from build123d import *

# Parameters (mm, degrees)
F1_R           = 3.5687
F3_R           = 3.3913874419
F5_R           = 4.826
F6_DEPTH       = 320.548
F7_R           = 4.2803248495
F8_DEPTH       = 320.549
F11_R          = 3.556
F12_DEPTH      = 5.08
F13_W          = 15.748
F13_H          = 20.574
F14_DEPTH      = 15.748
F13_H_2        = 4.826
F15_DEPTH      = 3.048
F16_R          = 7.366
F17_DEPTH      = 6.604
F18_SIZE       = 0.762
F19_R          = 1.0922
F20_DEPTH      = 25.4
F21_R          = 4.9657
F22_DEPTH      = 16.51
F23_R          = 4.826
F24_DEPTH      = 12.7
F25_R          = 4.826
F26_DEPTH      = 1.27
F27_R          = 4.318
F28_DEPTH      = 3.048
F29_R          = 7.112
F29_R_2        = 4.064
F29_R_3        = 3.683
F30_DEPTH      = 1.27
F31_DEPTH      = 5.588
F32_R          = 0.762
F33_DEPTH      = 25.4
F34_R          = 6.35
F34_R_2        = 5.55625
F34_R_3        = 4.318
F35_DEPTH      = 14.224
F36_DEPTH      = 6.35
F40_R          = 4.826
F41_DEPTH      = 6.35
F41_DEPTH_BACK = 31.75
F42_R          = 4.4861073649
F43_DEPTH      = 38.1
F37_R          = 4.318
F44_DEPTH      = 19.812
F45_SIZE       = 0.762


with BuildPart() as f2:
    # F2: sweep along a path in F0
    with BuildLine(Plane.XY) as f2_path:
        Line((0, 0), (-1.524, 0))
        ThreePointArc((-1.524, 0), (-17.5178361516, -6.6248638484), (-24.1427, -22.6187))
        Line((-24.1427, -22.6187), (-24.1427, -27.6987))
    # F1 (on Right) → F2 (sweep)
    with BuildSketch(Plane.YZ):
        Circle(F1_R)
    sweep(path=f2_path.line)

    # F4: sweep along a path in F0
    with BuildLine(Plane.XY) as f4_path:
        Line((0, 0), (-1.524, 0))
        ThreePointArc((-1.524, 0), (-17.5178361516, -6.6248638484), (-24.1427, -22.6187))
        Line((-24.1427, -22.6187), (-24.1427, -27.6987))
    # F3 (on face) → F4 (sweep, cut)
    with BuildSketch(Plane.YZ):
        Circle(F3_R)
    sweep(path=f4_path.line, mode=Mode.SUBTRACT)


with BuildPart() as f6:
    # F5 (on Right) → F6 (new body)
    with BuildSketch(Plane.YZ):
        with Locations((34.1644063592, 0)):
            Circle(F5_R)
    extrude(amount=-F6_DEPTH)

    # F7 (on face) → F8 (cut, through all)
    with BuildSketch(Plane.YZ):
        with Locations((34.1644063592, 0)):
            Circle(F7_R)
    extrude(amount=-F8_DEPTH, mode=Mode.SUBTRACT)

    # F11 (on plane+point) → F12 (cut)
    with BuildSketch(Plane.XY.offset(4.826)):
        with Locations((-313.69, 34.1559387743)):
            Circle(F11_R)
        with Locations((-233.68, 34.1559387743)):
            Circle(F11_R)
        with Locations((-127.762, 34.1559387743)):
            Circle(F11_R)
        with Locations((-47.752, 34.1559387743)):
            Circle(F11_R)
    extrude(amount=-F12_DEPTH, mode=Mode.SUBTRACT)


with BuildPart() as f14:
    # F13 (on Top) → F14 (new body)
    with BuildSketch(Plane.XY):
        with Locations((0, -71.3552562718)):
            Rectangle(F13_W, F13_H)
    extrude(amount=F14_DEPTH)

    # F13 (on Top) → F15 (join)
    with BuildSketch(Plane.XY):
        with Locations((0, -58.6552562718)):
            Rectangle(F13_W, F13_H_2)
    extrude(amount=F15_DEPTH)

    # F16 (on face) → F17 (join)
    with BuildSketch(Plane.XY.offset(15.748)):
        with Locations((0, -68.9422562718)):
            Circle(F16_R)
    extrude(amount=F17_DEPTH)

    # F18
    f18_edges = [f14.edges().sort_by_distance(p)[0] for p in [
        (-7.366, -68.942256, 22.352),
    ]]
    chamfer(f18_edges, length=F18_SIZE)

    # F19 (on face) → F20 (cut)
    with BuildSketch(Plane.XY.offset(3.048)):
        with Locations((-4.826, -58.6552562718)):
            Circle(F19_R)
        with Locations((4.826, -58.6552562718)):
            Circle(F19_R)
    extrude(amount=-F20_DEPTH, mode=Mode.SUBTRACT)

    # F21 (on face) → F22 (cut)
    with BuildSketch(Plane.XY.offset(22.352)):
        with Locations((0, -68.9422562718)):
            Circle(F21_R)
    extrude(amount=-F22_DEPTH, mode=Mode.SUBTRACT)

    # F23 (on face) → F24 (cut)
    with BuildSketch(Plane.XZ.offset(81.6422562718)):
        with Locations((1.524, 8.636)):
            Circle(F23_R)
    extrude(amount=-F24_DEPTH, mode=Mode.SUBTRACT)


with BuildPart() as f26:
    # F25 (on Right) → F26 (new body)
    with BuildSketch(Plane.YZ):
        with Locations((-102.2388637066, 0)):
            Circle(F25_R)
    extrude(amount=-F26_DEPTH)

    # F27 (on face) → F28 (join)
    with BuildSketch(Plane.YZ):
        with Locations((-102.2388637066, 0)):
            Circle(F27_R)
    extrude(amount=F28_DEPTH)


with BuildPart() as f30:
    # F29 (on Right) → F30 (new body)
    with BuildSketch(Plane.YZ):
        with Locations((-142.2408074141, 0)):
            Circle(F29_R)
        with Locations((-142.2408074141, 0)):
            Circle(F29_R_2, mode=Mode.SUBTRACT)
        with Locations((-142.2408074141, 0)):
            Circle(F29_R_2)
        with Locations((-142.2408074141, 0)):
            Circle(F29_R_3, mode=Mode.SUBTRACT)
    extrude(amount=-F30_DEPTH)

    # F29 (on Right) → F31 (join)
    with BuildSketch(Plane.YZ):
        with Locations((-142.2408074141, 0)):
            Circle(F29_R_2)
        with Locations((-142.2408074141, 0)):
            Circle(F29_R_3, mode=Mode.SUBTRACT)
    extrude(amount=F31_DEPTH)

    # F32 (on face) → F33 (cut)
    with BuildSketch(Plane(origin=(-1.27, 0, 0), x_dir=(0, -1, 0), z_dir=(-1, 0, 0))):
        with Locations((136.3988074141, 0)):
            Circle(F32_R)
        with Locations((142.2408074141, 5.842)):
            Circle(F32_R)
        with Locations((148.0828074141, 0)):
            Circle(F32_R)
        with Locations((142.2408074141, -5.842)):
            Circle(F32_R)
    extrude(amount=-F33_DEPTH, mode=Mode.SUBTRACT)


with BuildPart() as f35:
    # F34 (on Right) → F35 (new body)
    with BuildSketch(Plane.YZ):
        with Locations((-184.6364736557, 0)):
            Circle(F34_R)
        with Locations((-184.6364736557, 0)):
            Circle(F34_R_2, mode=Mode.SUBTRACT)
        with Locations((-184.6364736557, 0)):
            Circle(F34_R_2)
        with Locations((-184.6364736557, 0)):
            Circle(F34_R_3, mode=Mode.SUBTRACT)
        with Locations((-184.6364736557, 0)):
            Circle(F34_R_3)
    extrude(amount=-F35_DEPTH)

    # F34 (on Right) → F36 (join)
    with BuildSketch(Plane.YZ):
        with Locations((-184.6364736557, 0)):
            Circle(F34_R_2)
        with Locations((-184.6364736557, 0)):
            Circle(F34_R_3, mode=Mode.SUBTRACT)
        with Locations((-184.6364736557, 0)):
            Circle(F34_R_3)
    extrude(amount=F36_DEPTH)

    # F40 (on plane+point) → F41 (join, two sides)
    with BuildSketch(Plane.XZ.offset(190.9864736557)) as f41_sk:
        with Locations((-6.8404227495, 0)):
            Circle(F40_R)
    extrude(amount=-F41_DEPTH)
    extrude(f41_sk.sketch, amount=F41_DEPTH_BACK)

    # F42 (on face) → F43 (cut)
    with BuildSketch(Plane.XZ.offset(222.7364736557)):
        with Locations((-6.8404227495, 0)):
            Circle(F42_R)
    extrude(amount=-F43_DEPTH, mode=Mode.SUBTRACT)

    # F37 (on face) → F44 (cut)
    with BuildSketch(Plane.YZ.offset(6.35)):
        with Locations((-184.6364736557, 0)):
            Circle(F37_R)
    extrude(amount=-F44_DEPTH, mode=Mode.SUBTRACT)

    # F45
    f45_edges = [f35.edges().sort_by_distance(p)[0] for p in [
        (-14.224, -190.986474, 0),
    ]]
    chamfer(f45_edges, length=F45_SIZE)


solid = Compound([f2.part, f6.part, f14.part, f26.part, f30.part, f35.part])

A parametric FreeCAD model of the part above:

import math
import FreeCAD as App
import Part
import Sketcher
Q = App.Units.Quantity


def edges_at(feature, points):
    """Names of the edges that pass closest to the given points."""
    edges = feature.Shape.Edges
    near = lambda p: min(range(len(edges)), key=lambda i: edges[i].distToShape(Part.Vertex(*p))[0])
    return sorted({f"Edge{near(p) + 1}" for p in points})

doc = App.newDocument("Part")
body = doc.addObject("PartDesign::Body", "Body")

sketch1 = body.newObject("Sketcher::SketchObject", "Sketch")
sketch1.AttachmentSupport = (doc.getObject("YZ_Plane"), [""])
sketch1.MapMode = "FlatFace"
sketch1.addGeometry(Part.Circle(App.Vector(0, 0, 0), App.Vector(0, 0, 1), 3.5687), False)
sketch1.addConstraint(Sketcher.Constraint("Coincident", 0, 3, -1, 1))
sketch1.addConstraint(Sketcher.Constraint("Diameter", 0, Q("0.281 in")))

sketch2 = body.newObject("Sketcher::SketchObject", "Sketch001")
sketch2.AttachmentSupport = (doc.getObject("XY_Plane"), [""])
sketch2.MapMode = "FlatFace"
sketch2.addGeometry(Part.LineSegment(App.Vector(0, 0, 0), App.Vector(-1.524, 0, 0)), False)
sketch2.addGeometry(Part.ArcOfCircle(Part.Circle(App.Vector(-1.524, -22.6187, 0), App.Vector(0, 0, 1), 22.6187), math.radians(90), math.radians(180)), False)
sketch2.addGeometry(Part.LineSegment(App.Vector(-24.1427, -22.6187, 0), App.Vector(-24.1427, -27.6987, 0)), False)
sketch2.addConstraint(Sketcher.Constraint("Tangent", 0, 2, 1, 1))
sketch2.addConstraint(Sketcher.Constraint("Tangent", 1, 2, 2, 1))
sketch2.addConstraint(Sketcher.Constraint("Horizontal", 0))
sketch2.addConstraint(Sketcher.Constraint("Vertical", 2))
sketch2.addConstraint(Sketcher.Constraint("Coincident", 0, 1, -1, 1))
sketch2.addConstraint(Sketcher.Constraint("DistanceY", 2, 2, 2, 1, Q("0.2 in")))
sketch2.addConstraint(Sketcher.Constraint("DistanceX", 0, 2, 0, 1, Q("0.06 in")))
sketch2.addConstraint(Sketcher.Constraint("Radius", 1, Q("0.8905 in")))
doc.recompute()

additivepipe = body.newObject("PartDesign::AdditivePipe", "AdditivePipe")
additivepipe.Profile = sketch1
additivepipe.Spine = (sketch2, ["Edge1", "Edge2", "Edge3"])

sketch3 = body.newObject("Sketcher::SketchObject", "Sketch002")
sketch3.AttachmentSupport = (doc.getObject("YZ_Plane"), [""])
sketch3.MapMode = "FlatFace"
sketch3.addGeometry(Part.Circle(App.Vector(0, 0, 0), App.Vector(0, 0, 1), 3.391387), False)
sketch3.addConstraint(Sketcher.Constraint("Coincident", 0, 3, -1, 1))
sketch3.addConstraint(Sketcher.Constraint("Diameter", 0, Q("6.782775 mm")))

sketch4 = body.newObject("Sketcher::SketchObject", "Sketch003")
sketch4.AttachmentSupport = (doc.getObject("XY_Plane"), [""])
sketch4.MapMode = "FlatFace"
sketch4.addGeometry(Part.LineSegment(App.Vector(0, 0, 0), App.Vector(-1.524, 0, 0)), False)
sketch4.addGeometry(Part.ArcOfCircle(Part.Circle(App.Vector(-1.524, -22.6187, 0), App.Vector(0, 0, 1), 22.6187), math.radians(90), math.radians(180)), False)
sketch4.addGeometry(Part.LineSegment(App.Vector(-24.1427, -22.6187, 0), App.Vector(-24.1427, -27.6987, 0)), False)
sketch4.addConstraint(Sketcher.Constraint("Tangent", 0, 2, 1, 1))
sketch4.addConstraint(Sketcher.Constraint("Tangent", 1, 2, 2, 1))
sketch4.addConstraint(Sketcher.Constraint("Horizontal", 0))
sketch4.addConstraint(Sketcher.Constraint("Vertical", 2))
sketch4.addConstraint(Sketcher.Constraint("Coincident", 0, 1, -1, 1))
sketch4.addConstraint(Sketcher.Constraint("DistanceY", 2, 2, 2, 1, Q("0.2 in")))
sketch4.addConstraint(Sketcher.Constraint("DistanceX", 0, 2, 0, 1, Q("0.06 in")))
sketch4.addConstraint(Sketcher.Constraint("Radius", 1, Q("0.8905 in")))
doc.recompute()

subtractivepipe = body.newObject("PartDesign::SubtractivePipe", "SubtractivePipe")
subtractivepipe.Profile = sketch3
subtractivepipe.Spine = (sketch4, ["Edge1", "Edge2", "Edge3"])
body2 = doc.addObject("PartDesign::Body", "Body001")

sketch5 = body2.newObject("Sketcher::SketchObject", "Sketch004")
sketch5.AttachmentSupport = (doc.getObject("YZ_Plane001"), [""])
sketch5.MapMode = "FlatFace"
sketch5.addGeometry(Part.Circle(App.Vector(34.164406, 0, 0), App.Vector(0, 0, 1), 4.826), False)
sketch5.addConstraint(Sketcher.Constraint("PointOnObject", 0, 3, -1))
sketch5.addConstraint(Sketcher.Constraint("Diameter", 0, Q("0.38 in")))
sketch5.addConstraint(Sketcher.Constraint("DistanceX", -1, 1, 0, 3, Q("34.164406 mm")))
pad1 = body2.newObject("PartDesign::Pad", "Pad")
pad1.Profile = sketch5
pad1.Length = Q("12.62 in")
pad1.Reversed = True

sketch6 = body2.newObject("Sketcher::SketchObject", "Sketch005")
sketch6.AttachmentSupport = (doc.getObject("YZ_Plane001"), [""])
sketch6.MapMode = "FlatFace"
sketch6.addGeometry(Part.Circle(App.Vector(34.164406, 0, 0), App.Vector(0, 0, 1), 4.280325), False)
sketch6.addConstraint(Sketcher.Constraint("PointOnObject", 0, 3, -1))
sketch6.addConstraint(Sketcher.Constraint("Diameter", 0, Q("8.56065 mm")))
sketch6.addConstraint(Sketcher.Constraint("DistanceX", -1, 1, 0, 3, Q("34.164406 mm")))
pocket1 = body2.newObject("PartDesign::Pocket", "Pocket")
pocket1.Profile = sketch6
pocket1.Type = "ThroughAll"

sketch7 = body2.newObject("Sketcher::SketchObject", "Sketch006")
sketch7.AttachmentSupport = (doc.getObject("XY_Plane001"), [""])
sketch7.MapMode = "FlatFace"
sketch7.AttachmentOffset = App.Placement(App.Vector(0, 0, 0.19 * 25.4), App.Rotation())
sketch7.addGeometry(Part.Circle(App.Vector(-313.69, 34.155939, 0), App.Vector(0, 0, 1), 3.556), False)
sketch7.addGeometry(Part.Circle(App.Vector(-233.68, 34.155939, 0), App.Vector(0, 0, 1), 3.556), False)
sketch7.addGeometry(Part.Circle(App.Vector(-127.762, 34.155939, 0), App.Vector(0, 0, 1), 3.556), False)
sketch7.addGeometry(Part.Circle(App.Vector(-47.752, 34.155939, 0), App.Vector(0, 0, 1), 3.556), False)
sketch7.addConstraint(Sketcher.Constraint("Equal", 0, 1))
sketch7.addConstraint(Sketcher.Constraint("Equal", 1, 2))
sketch7.addConstraint(Sketcher.Constraint("Equal", 2, 3))
sketch7.addConstraint(Sketcher.Constraint("Horizontal", 0, 3, 1, 3))
sketch7.addConstraint(Sketcher.Constraint("Horizontal", 1, 3, 2, 3))
sketch7.addConstraint(Sketcher.Constraint("Horizontal", 2, 3, 3, 3))
sketch7.addConstraint(Sketcher.Constraint("Diameter", 0, Q("0.28 in")))
sketch7.addConstraint(Sketcher.Constraint("DistanceX", 1, 3, -1, 1, Q("9.2 in")))
sketch7.addConstraint(Sketcher.Constraint("DistanceX", 0, 3, -1, 1, Q("12.35 in")))
sketch7.addConstraint(Sketcher.Constraint("DistanceX", 2, 3, -1, 1, Q("5.03 in")))
sketch7.addConstraint(Sketcher.Constraint("DistanceX", 3, 3, -1, 1, Q("1.88 in")))
sketch7.addConstraint(Sketcher.Constraint("DistanceY", -1, 1, 0, 3, Q("34.155939 mm")))
pocket2 = body2.newObject("PartDesign::Pocket", "Pocket001")
pocket2.Profile = sketch7
pocket2.Length = Q("0.2 in")
body3 = doc.addObject("PartDesign::Body", "Body002")

sketch8 = body3.newObject("Sketcher::SketchObject", "Sketch007")
sketch8.AttachmentSupport = (doc.getObject("XY_Plane002"), [""])
sketch8.MapMode = "FlatFace"
sketch8.addGeometry(Part.LineSegment(App.Vector(-7.874, -61.068256, 0), App.Vector(-7.874, -81.642256, 0)), False)
sketch8.addGeometry(Part.LineSegment(App.Vector(-7.874, -81.642256, 0), App.Vector(7.874, -81.642256, 0)), False)
sketch8.addGeometry(Part.LineSegment(App.Vector(7.874, -81.642256, 0), App.Vector(7.874, -61.068256, 0)), False)
sketch8.addGeometry(Part.LineSegment(App.Vector(7.874, -61.068256, 0), App.Vector(-7.874, -61.068256, 0)), False)
sketch8.addConstraint(Sketcher.Constraint("Coincident", 0, 2, 1, 1))
sketch8.addConstraint(Sketcher.Constraint("Coincident", 1, 2, 2, 1))
sketch8.addConstraint(Sketcher.Constraint("Coincident", 2, 2, 3, 1))
sketch8.addConstraint(Sketcher.Constraint("Coincident", 3, 2, 0, 1))
sketch8.addConstraint(Sketcher.Constraint("Vertical", 0))
sketch8.addConstraint(Sketcher.Constraint("Horizontal", 1))
sketch8.addConstraint(Sketcher.Constraint("Vertical", 2))
sketch8.addConstraint(Sketcher.Constraint("Horizontal", 3))
sketch8.addConstraint(Sketcher.Constraint("DistanceX", 1, 1, 1, 2, Q("0.62 in")))
sketch8.addConstraint(Sketcher.Constraint("DistanceY", 0, 2, 0, 1, Q("0.81 in")))
sketch8.addConstraint(Sketcher.Constraint("DistanceX", 0, 2, -1, 1, Q("0.31 in")))
sketch8.addConstraint(Sketcher.Constraint("DistanceY", 0, 2, -1, 1, Q("81.642256 mm")))
pad2 = body3.newObject("PartDesign::Pad", "Pad001")
pad2.Profile = sketch8
pad2.Length = Q("0.62 in")

sketch9 = body3.newObject("Sketcher::SketchObject", "Sketch008")
sketch9.AttachmentSupport = (doc.getObject("XY_Plane002"), [""])
sketch9.MapMode = "FlatFace"
sketch9.addGeometry(Part.LineSegment(App.Vector(-7.874, -56.242256, 0), App.Vector(-7.874, -61.068256, 0)), False)
sketch9.addGeometry(Part.LineSegment(App.Vector(-7.874, -61.068256, 0), App.Vector(7.874, -61.068256, 0)), False)
sketch9.addGeometry(Part.LineSegment(App.Vector(7.874, -61.068256, 0), App.Vector(7.874, -56.242256, 0)), False)
sketch9.addGeometry(Part.LineSegment(App.Vector(7.874, -56.242256, 0), App.Vector(-7.874, -56.242256, 0)), False)
sketch9.addConstraint(Sketcher.Constraint("Coincident", 0, 2, 1, 1))
sketch9.addConstraint(Sketcher.Constraint("Coincident", 1, 2, 2, 1))
sketch9.addConstraint(Sketcher.Constraint("Coincident", 2, 2, 3, 1))
sketch9.addConstraint(Sketcher.Constraint("Coincident", 3, 2, 0, 1))
sketch9.addConstraint(Sketcher.Constraint("Vertical", 0))
sketch9.addConstraint(Sketcher.Constraint("Horizontal", 1))
sketch9.addConstraint(Sketcher.Constraint("Vertical", 2))
sketch9.addConstraint(Sketcher.Constraint("Horizontal", 3))
sketch9.addConstraint(Sketcher.Constraint("DistanceX", 1, 1, 1, 2, Q("0.62 in")))
sketch9.addConstraint(Sketcher.Constraint("DistanceY", 0, 2, 0, 1, Q("0.19 in")))
sketch9.addConstraint(Sketcher.Constraint("DistanceX", 0, 2, -1, 1, Q("0.31 in")))
sketch9.addConstraint(Sketcher.Constraint("DistanceY", 0, 2, -1, 1, Q("61.068256 mm")))
pad3 = body3.newObject("PartDesign::Pad", "Pad002")
pad3.Profile = sketch9
pad3.Length = Q("0.12 in")

sketch10 = body3.newObject("Sketcher::SketchObject", "Sketch009")
sketch10.AttachmentSupport = (doc.getObject("XY_Plane002"), [""])
sketch10.MapMode = "FlatFace"
sketch10.AttachmentOffset = App.Placement(App.Vector(0, 0, 0.62 * 25.4), App.Rotation())
sketch10.addGeometry(Part.Circle(App.Vector(0, -68.942256, 0), App.Vector(0, 0, 1), 7.366), False)
sketch10.addConstraint(Sketcher.Constraint("PointOnObject", 0, 3, -2))
sketch10.addConstraint(Sketcher.Constraint("Diameter", 0, Q("0.58 in")))
sketch10.addConstraint(Sketcher.Constraint("DistanceY", 0, 3, -1, 1, Q("68.942256 mm")))
pad4 = body3.newObject("PartDesign::Pad", "Pad003")
pad4.Profile = sketch10
pad4.Length = Q("0.26 in")
doc.recompute()

chamfer = body3.newObject("PartDesign::Chamfer", "Chamfer")
chamfer.Base = (pad4, edges_at(pad4, [(-7.366, -68.942, 22.352)]))
chamfer.Size = Q("0.03 in")

sketch11 = body3.newObject("Sketcher::SketchObject", "Sketch010")
sketch11.AttachmentSupport = (doc.getObject("XY_Plane002"), [""])
sketch11.MapMode = "FlatFace"
sketch11.AttachmentOffset = App.Placement(App.Vector(0, 0, 0.12 * 25.4), App.Rotation())
sketch11.addGeometry(Part.Circle(App.Vector(-4.826, -58.655256, 0), App.Vector(0, 0, 1), 1.0922), False)
sketch11.addGeometry(Part.Circle(App.Vector(4.826, -58.655256, 0), App.Vector(0, 0, 1), 1.0922), False)
sketch11.addConstraint(Sketcher.Constraint("Equal", 0, 1))
sketch11.addConstraint(Sketcher.Constraint("Symmetric", 0, 3, 1, 3, -2))
sketch11.addConstraint(Sketcher.Constraint("Diameter", 0, Q("0.086 in")))
sketch11.addConstraint(Sketcher.Constraint("DistanceX", 0, 3, -1, 1, Q("0.19 in")))
sketch11.addConstraint(Sketcher.Constraint("DistanceY", 0, 3, -1, 1, Q("58.655256 mm")))
pocket3 = body3.newObject("PartDesign::Pocket", "Pocket002")
pocket3.Profile = sketch11
pocket3.Length = Q("1 in")

sketch12 = body3.newObject("Sketcher::SketchObject", "Sketch011")
sketch12.AttachmentSupport = (doc.getObject("XY_Plane002"), [""])
sketch12.MapMode = "FlatFace"
sketch12.AttachmentOffset = App.Placement(App.Vector(0, 0, 0.88 * 25.4), App.Rotation())
sketch12.addGeometry(Part.Circle(App.Vector(0, -68.942256, 0), App.Vector(0, 0, 1), 4.9657), False)
sketch12.addConstraint(Sketcher.Constraint("PointOnObject", 0, 3, -2))
sketch12.addConstraint(Sketcher.Constraint("Diameter", 0, Q("0.391 in")))
sketch12.addConstraint(Sketcher.Constraint("DistanceY", 0, 3, -1, 1, Q("68.942256 mm")))
pocket4 = body3.newObject("PartDesign::Pocket", "Pocket003")
pocket4.Profile = sketch12
pocket4.Length = Q("0.65 in")

sketch13 = body3.newObject("Sketcher::SketchObject", "Sketch012")
sketch13.AttachmentSupport = (doc.getObject("XZ_Plane002"), [""])
sketch13.MapMode = "FlatFace"
sketch13.AttachmentOffset = App.Placement(App.Vector(0, 0, 81.642256), App.Rotation())
sketch13.addGeometry(Part.Circle(App.Vector(1.524, 8.636, 0), App.Vector(0, 0, 1), 4.826), False)
sketch13.addConstraint(Sketcher.Constraint("Diameter", 0, Q("0.38 in")))
sketch13.addConstraint(Sketcher.Constraint("DistanceX", -1, 1, 0, 3, Q("0.06 in")))
sketch13.addConstraint(Sketcher.Constraint("DistanceY", -1, 1, 0, 3, Q("0.34 in")))
pocket5 = body3.newObject("PartDesign::Pocket", "Pocket004")
pocket5.Profile = sketch13
pocket5.Length = Q("0.5 in")
body4 = doc.addObject("PartDesign::Body", "Body003")

sketch14 = body4.newObject("Sketcher::SketchObject", "Sketch013")
sketch14.AttachmentSupport = (doc.getObject("YZ_Plane003"), [""])
sketch14.MapMode = "FlatFace"
sketch14.addGeometry(Part.Circle(App.Vector(-102.238864, 0, 0), App.Vector(0, 0, 1), 4.826), False)
sketch14.addConstraint(Sketcher.Constraint("PointOnObject", 0, 3, -1))
sketch14.addConstraint(Sketcher.Constraint("Diameter", 0, Q("0.38 in")))
sketch14.addConstraint(Sketcher.Constraint("DistanceX", 0, 3, -1, 1, Q("102.238864 mm")))
pad5 = body4.newObject("PartDesign::Pad", "Pad004")
pad5.Profile = sketch14
pad5.Length = Q("0.05 in")
pad5.Reversed = True

sketch15 = body4.newObject("Sketcher::SketchObject", "Sketch014")
sketch15.AttachmentSupport = (doc.getObject("YZ_Plane003"), [""])
sketch15.MapMode = "FlatFace"
sketch15.addGeometry(Part.Circle(App.Vector(-102.238864, 0, 0), App.Vector(0, 0, 1), 4.318), False)
sketch15.addConstraint(Sketcher.Constraint("PointOnObject", 0, 3, -1))
sketch15.addConstraint(Sketcher.Constraint("Diameter", 0, Q("0.34 in")))
sketch15.addConstraint(Sketcher.Constraint("DistanceX", 0, 3, -1, 1, Q("102.238864 mm")))
pad6 = body4.newObject("PartDesign::Pad", "Pad005")
pad6.Profile = sketch15
pad6.Length = Q("0.12 in")
body5 = doc.addObject("PartDesign::Body", "Body004")

sketch16 = body5.newObject("Sketcher::SketchObject", "Sketch015")
sketch16.AttachmentSupport = (doc.getObject("YZ_Plane004"), [""])
sketch16.MapMode = "FlatFace"
sketch16.addGeometry(Part.Circle(App.Vector(-142.240807, 0, 0), App.Vector(0, 0, 1), 7.112), False)
sketch16.addGeometry(Part.Circle(App.Vector(-142.240807, 0, 0), App.Vector(0, 0, 1), 3.683), False)
sketch16.addConstraint(Sketcher.Constraint("Coincident", 1, 3, 0, 3))
sketch16.addConstraint(Sketcher.Constraint("PointOnObject", 0, 3, -1))
sketch16.addConstraint(Sketcher.Constraint("Diameter", 0, Q("0.56 in")))
sketch16.addConstraint(Sketcher.Constraint("Diameter", 1, Q("0.29 in")))
sketch16.addConstraint(Sketcher.Constraint("DistanceX", 0, 3, -1, 1, Q("142.240807 mm")))
pad7 = body5.newObject("PartDesign::Pad", "Pad006")
pad7.Profile = sketch16
pad7.Length = Q("0.05 in")
pad7.Reversed = True

sketch17 = body5.newObject("Sketcher::SketchObject", "Sketch016")
sketch17.AttachmentSupport = (doc.getObject("YZ_Plane004"), [""])
sketch17.MapMode = "FlatFace"
sketch17.addGeometry(Part.Circle(App.Vector(-142.240807, 0, 0), App.Vector(0, 0, 1), 4.064), False)
sketch17.addGeometry(Part.Circle(App.Vector(-142.240807, 0, 0), App.Vector(0, 0, 1), 3.683), False)
sketch17.addConstraint(Sketcher.Constraint("Coincident", 1, 3, 0, 3))
sketch17.addConstraint(Sketcher.Constraint("PointOnObject", 0, 3, -1))
sketch17.addConstraint(Sketcher.Constraint("Diameter", 0, Q("0.32 in")))
sketch17.addConstraint(Sketcher.Constraint("Diameter", 1, Q("0.29 in")))
sketch17.addConstraint(Sketcher.Constraint("DistanceX", 0, 3, -1, 1, Q("142.240807 mm")))
pad8 = body5.newObject("PartDesign::Pad", "Pad007")
pad8.Profile = sketch17
pad8.Length = Q("0.22 in")

sketch18 = body5.newObject("Sketcher::SketchObject", "Sketch017")
sketch18.AttachmentSupport = (doc.getObject("YZ_Plane004"), [""])
sketch18.MapMode = "FlatFace"
sketch18.AttachmentOffset = App.Placement(App.Vector(0, 0, -0.05 * 25.4), App.Rotation())
sketch18.addGeometry(Part.Circle(App.Vector(-136.398807, 0, 0), App.Vector(0, 0, 1), 0.762), False)
sketch18.addGeometry(Part.Circle(App.Vector(-142.240807, 5.842, 0), App.Vector(0, 0, 1), 0.762), False)
sketch18.addGeometry(Part.Circle(App.Vector(-148.082807, 0, 0), App.Vector(0, 0, 1), 0.762), False)
sketch18.addGeometry(Part.Circle(App.Vector(-142.240807, -5.842, 0), App.Vector(0, 0, 1), 0.762), False)
sketch18.addConstraint(Sketcher.Constraint("Equal", 0, 1))
sketch18.addConstraint(Sketcher.Constraint("Equal", 1, 2))
sketch18.addConstraint(Sketcher.Constraint("Equal", 2, 3))
sketch18.addConstraint(Sketcher.Constraint("Symmetric", 1, 3, 3, 3, -1))
sketch18.addConstraint(Sketcher.Constraint("PointOnObject", 0, 3, -1))
sketch18.addConstraint(Sketcher.Constraint("PointOnObject", 2, 3, -1))
sketch18.addConstraint(Sketcher.Constraint("Diameter", 0, Q("0.06 in")))
sketch18.addConstraint(Sketcher.Constraint("DistanceY", -1, 1, 1, 3, Q("0.23 in")))
sketch18.addConstraint(Sketcher.Constraint("DistanceX", 1, 3, 0, 3, Q("0.23 in")))
sketch18.addConstraint(Sketcher.Constraint("DistanceX", 2, 3, 1, 3, Q("0.23 in")))
sketch18.addConstraint(Sketcher.Constraint("DistanceX", 0, 3, -1, 1, Q("136.398807 mm")))
pocket6 = body5.newObject("PartDesign::Pocket", "Pocket005")
pocket6.Profile = sketch18
pocket6.Length = Q("1 in")
pocket6.Reversed = True
body6 = doc.addObject("PartDesign::Body", "Body005")

sketch19 = body6.newObject("Sketcher::SketchObject", "Sketch018")
sketch19.AttachmentSupport = (doc.getObject("YZ_Plane005"), [""])
sketch19.MapMode = "FlatFace"
sketch19.addGeometry(Part.Circle(App.Vector(-184.636474, 0, 0), App.Vector(0, 0, 1), 6.35), False)
sketch19.addConstraint(Sketcher.Constraint("PointOnObject", 0, 3, -1))
sketch19.addConstraint(Sketcher.Constraint("Diameter", 0, Q("0.5 in")))
sketch19.addConstraint(Sketcher.Constraint("DistanceX", 0, 3, -1, 1, Q("184.636474 mm")))
pad9 = body6.newObject("PartDesign::Pad", "Pad008")
pad9.Profile = sketch19
pad9.Length = Q("0.56 in")
pad9.Reversed = True

sketch20 = body6.newObject("Sketcher::SketchObject", "Sketch019")
sketch20.AttachmentSupport = (doc.getObject("YZ_Plane005"), [""])
sketch20.MapMode = "FlatFace"
sketch20.addGeometry(Part.Circle(App.Vector(-184.636474, 0, 0), App.Vector(0, 0, 1), 5.55625), False)
sketch20.addConstraint(Sketcher.Constraint("PointOnObject", 0, 3, -1))
sketch20.addConstraint(Sketcher.Constraint("Diameter", 0, Q("0.4375 in")))
sketch20.addConstraint(Sketcher.Constraint("DistanceX", 0, 3, -1, 1, Q("184.636474 mm")))
pad10 = body6.newObject("PartDesign::Pad", "Pad009")
pad10.Profile = sketch20
pad10.Length = Q("0.25 in")

sketch21 = body6.newObject("Sketcher::SketchObject", "Sketch020")
sketch21.AttachmentSupport = (doc.getObject("XZ_Plane005"), [""])
sketch21.MapMode = "FlatFace"
sketch21.AttachmentOffset = App.Placement(App.Vector(0, 0, 190.986474), App.Rotation())
sketch21.addGeometry(Part.Circle(App.Vector(-6.840423, 0, 0), App.Vector(0, 0, 1), 4.826), False)
sketch21.addConstraint(Sketcher.Constraint("PointOnObject", 0, 3, -1))
sketch21.addConstraint(Sketcher.Constraint("Diameter", 0, Q("0.38 in")))
sketch21.addConstraint(Sketcher.Constraint("DistanceX", 0, 3, -1, 1, Q("6.840423 mm")))
pad11 = body6.newObject("PartDesign::Pad", "Pad010")
pad11.Profile = sketch21
pad11.Type = "TwoLengths"
pad11.Length = Q("0.25 in")
pad11.Length2 = Q("1.25 in")
pad11.Reversed = True

sketch22 = body6.newObject("Sketcher::SketchObject", "Sketch021")
sketch22.AttachmentSupport = (doc.getObject("XZ_Plane005"), [""])
sketch22.MapMode = "FlatFace"
sketch22.AttachmentOffset = App.Placement(App.Vector(0, 0, 222.736474), App.Rotation())
sketch22.addGeometry(Part.Circle(App.Vector(-6.840423, 0, 0), App.Vector(0, 0, 1), 4.486107), False)
sketch22.addConstraint(Sketcher.Constraint("PointOnObject", 0, 3, -1))
sketch22.addConstraint(Sketcher.Constraint("Diameter", 0, Q("8.972215 mm")))
sketch22.addConstraint(Sketcher.Constraint("DistanceX", 0, 3, -1, 1, Q("6.840423 mm")))
pocket7 = body6.newObject("PartDesign::Pocket", "Pocket006")
pocket7.Profile = sketch22
pocket7.Length = Q("1.5 in")

sketch23 = body6.newObject("Sketcher::SketchObject", "Sketch022")
sketch23.AttachmentSupport = (doc.getObject("YZ_Plane005"), [""])
sketch23.MapMode = "FlatFace"
sketch23.AttachmentOffset = App.Placement(App.Vector(0, 0, 0.25 * 25.4), App.Rotation())
sketch23.addGeometry(Part.Circle(App.Vector(-184.636474, 0, 0), App.Vector(0, 0, 1), 4.318), False)
sketch23.addConstraint(Sketcher.Constraint("PointOnObject", 0, 3, -1))
sketch23.addConstraint(Sketcher.Constraint("Diameter", 0, Q("0.34 in")))
sketch23.addConstraint(Sketcher.Constraint("DistanceX", 0, 3, -1, 1, Q("184.636474 mm")))
pocket8 = body6.newObject("PartDesign::Pocket", "Pocket007")
pocket8.Profile = sketch23
pocket8.Length = Q("0.78 in")
doc.recompute()

chamfer2 = body6.newObject("PartDesign::Chamfer", "Chamfer001")
chamfer2.Base = (pocket8, edges_at(pocket8, [(-14.224, -190.986, 0)]))
chamfer2.Size = Q("0.03 in")

doc.recompute()
